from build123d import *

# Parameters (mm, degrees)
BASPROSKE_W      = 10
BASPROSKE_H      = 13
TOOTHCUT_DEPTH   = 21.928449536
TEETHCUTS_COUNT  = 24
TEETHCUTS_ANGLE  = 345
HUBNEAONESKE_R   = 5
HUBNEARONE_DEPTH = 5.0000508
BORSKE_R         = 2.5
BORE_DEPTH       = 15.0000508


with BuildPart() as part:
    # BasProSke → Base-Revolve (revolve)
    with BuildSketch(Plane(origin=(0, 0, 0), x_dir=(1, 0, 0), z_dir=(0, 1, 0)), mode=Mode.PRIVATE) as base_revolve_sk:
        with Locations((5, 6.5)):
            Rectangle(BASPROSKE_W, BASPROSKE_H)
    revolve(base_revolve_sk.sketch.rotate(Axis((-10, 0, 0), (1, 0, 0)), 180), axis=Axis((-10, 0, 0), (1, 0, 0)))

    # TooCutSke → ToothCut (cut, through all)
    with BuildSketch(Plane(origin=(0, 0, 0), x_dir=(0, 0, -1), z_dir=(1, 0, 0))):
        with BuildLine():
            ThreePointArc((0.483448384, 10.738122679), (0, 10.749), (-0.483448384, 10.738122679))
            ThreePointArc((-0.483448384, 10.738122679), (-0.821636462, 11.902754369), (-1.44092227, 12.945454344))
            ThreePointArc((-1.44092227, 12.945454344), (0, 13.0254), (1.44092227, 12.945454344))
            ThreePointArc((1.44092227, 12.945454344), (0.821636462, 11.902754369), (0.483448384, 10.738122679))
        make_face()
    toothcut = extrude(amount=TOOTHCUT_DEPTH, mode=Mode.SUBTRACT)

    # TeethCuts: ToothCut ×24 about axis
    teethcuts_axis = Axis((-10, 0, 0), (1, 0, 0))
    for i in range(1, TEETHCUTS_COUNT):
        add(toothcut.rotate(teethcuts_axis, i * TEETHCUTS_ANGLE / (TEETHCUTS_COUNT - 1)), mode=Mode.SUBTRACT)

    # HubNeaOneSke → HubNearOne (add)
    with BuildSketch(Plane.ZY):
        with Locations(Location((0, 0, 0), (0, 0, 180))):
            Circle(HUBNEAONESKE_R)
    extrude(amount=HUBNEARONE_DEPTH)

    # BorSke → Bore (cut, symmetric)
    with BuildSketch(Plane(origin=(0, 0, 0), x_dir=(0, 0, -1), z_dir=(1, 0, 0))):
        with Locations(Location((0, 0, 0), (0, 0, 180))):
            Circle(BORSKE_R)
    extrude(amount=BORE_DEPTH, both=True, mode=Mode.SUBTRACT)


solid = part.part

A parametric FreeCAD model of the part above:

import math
import FreeCAD as App
import Part
import Sketcher

V = App.Vector
Q = App.Units.Quantity


def add_polygon(sketch, points):
    """Adds a closed chain of lines whose ends are joined by coincident constraints."""
    first, n = sketch.GeometryCount, len(points)
    for a, b in zip(points, points[1:] + points[:1]):
        sketch.addGeometry(Part.LineSegment(App.Vector(*a, 0), App.Vector(*b, 0)), False)
    for i in range(n):
        sketch.addConstraint(Sketcher.Constraint("Coincident", first + i, 2, first + (i + 1) % n, 1))

doc = App.newDocument("Part")
body = doc.addObject("PartDesign::Body", "Body")

sketch1 = body.newObject("Sketcher::SketchObject", "Sketch")
sketch1.AttachmentSupport = (doc.getObject("XZ_Plane"), [""])
sketch1.MapMode = "FlatFace"
add_polygon(sketch1, [(0, -13), (0, 0), (10, 0), (10, -13)])
sketch1.addConstraint(Sketcher.Constraint("Vertical", 0))
sketch1.addConstraint(Sketcher.Constraint("Horizontal", 1))
sketch1.addConstraint(Sketcher.Constraint("Vertical", 2))
sketch1.addConstraint(Sketcher.Constraint("Horizontal", 3))
sketch1.addConstraint(Sketcher.Constraint("Coincident", 0, 2, -1, 1))
sketch1.addConstraint(Sketcher.Constraint("DistanceX", 1, 1, 1, 2, Q("10 mm")))
sketch1.addConstraint(Sketcher.Constraint("DistanceY", 0, 1, 0, 2, Q("13 mm")))
revolution = body.newObject("PartDesign::Revolution", "Revolution")
revolution.Profile = sketch1
revolution.ReferenceAxis = (sketch1, ["H_Axis"])
revolution.Angle = 360

sketch2 = body.newObject("Sketcher::SketchObject", "Sketch001")
sketch2.AttachmentSupport = (doc.getObject("YZ_Plane"), [""])
sketch2.MapMode = "FlatFace"
sketch2.addGeometry(Part.ArcOfCircle(Part.Circle(V(0, 0, 0), V(0, 0, 1), 10.7), math.radians(-2.58), math.radians(2.58)), False)
sketch2.addGeometry(Part.ArcOfCircle(Part.Circle(V(10, -5.2, 0), V(0, 0, 1), 4.8), math.radians(52), math.radians(81)), False)
sketch2.addGeometry(Part.ArcOfCircle(Part.Circle(V(0, 0, 0), V(0, 0, 1), 13), math.radians(-6.35), math.radians(6.35)), False)
sketch2.addGeometry(Part.ArcOfCircle(Part.Circle(V(10, 5.2, 0), V(0, 0, 1), 4.8), math.radians(-81), math.radians(-52)), False)
sketch2.addConstraint(Sketcher.Constraint("Coincident", 0, 1, 1, 2))
sketch2.addConstraint(Sketcher.Constraint("Coincident", 1, 1, 2, 1))
sketch2.addConstraint(Sketcher.Constraint("Coincident", 2, 2, 3, 2))
sketch2.addConstraint(Sketcher.Constraint("Coincident", 3, 1, 0, 2))
sketch2.addConstraint(Sketcher.Constraint("Coincident", 0, 3, -1, 1))
sketch2.addConstraint(Sketcher.Constraint("Coincident", 2, 3, -1, 1))
sketch2.addConstraint(Sketcher.Constraint("Equal", 1, 3))
sketch2.addConstraint(Sketcher.Constraint("Symmetric", 1, 3, 3, 3, -1))
sketch2.addConstraint(Sketcher.Constraint("Radius", 1, Q("4.8 mm")))
sketch2.addConstraint(Sketcher.Constraint("Radius", 0, Q("10.749 mm")))
sketch2.addConstraint(Sketcher.Constraint("Radius", 2, Q("13.0254 mm")))
sketch2.addConstraint(Sketcher.Constraint("DistanceY", 1, 3, -1, 1, Q("5.225202 mm")))
sketch2.addConstraint(Sketcher.Constraint("DistanceX", -1, 1, 1, 3, Q("9.992621 mm")))
pocket1 = body.newObject("PartDesign::Pocket", "Pocket")
pocket1.Profile = sketch2
pocket1.Type = "ThroughAll"
pocket1.Reversed = True
doc.recompute()

polarpattern = body.newObject("PartDesign::PolarPattern", "PolarPattern")
polarpattern.Originals = [pocket1]
polarpattern.Axis = (doc.getObject("X_Axis"), [""])
polarpattern.Angle = 360
polarpattern.Occurrences = 24
body.Tip = polarpattern

sketch3 = body.newObject("Sketcher::SketchObject", "Sketch002")
sketch3.AttachmentSupport = (doc.getObject("YZ_Plane"), [""])
sketch3.MapMode = "FlatFace"
sketch3.addGeometry(Part.Circle(V(0, 0, 0), V(0, 0, 1), 5), False)
sketch3.addConstraint(Sketcher.Constraint("Coincident", 0, 3, -1, 1))
sketch3.addConstraint(Sketcher.Constraint("Diameter", 0, Q("10 mm")))
pad1 = body.newObject("PartDesign::Pad", "Pad")
pad1.Profile = sketch3
pad1.Length = 5.000051
pad1.Reversed = True

sketch4 = body.newObject("Sketcher::SketchObject", "Sketch003")
sketch4.AttachmentSupport = (doc.getObject("YZ_Plane"), [""])
sketch4.MapMode = "FlatFace"
sketch4.addGeometry(Part.Circle(V(0, 0, 0), V(0, 0, 1), 2.5), False)
sketch4.addConstraint(Sketcher.Constraint("Coincident", 0, 3, -1, 1))
sketch4.addConstraint(Sketcher.Constraint("Diameter", 0, Q("5 mm")))
pocket2 = body.newObject("PartDesign::Pocket", "Pocket001")
pocket2.Profile = sketch4
pocket2.Length = 30.000102
pocket2.Midplane = True

doc.recompute()
